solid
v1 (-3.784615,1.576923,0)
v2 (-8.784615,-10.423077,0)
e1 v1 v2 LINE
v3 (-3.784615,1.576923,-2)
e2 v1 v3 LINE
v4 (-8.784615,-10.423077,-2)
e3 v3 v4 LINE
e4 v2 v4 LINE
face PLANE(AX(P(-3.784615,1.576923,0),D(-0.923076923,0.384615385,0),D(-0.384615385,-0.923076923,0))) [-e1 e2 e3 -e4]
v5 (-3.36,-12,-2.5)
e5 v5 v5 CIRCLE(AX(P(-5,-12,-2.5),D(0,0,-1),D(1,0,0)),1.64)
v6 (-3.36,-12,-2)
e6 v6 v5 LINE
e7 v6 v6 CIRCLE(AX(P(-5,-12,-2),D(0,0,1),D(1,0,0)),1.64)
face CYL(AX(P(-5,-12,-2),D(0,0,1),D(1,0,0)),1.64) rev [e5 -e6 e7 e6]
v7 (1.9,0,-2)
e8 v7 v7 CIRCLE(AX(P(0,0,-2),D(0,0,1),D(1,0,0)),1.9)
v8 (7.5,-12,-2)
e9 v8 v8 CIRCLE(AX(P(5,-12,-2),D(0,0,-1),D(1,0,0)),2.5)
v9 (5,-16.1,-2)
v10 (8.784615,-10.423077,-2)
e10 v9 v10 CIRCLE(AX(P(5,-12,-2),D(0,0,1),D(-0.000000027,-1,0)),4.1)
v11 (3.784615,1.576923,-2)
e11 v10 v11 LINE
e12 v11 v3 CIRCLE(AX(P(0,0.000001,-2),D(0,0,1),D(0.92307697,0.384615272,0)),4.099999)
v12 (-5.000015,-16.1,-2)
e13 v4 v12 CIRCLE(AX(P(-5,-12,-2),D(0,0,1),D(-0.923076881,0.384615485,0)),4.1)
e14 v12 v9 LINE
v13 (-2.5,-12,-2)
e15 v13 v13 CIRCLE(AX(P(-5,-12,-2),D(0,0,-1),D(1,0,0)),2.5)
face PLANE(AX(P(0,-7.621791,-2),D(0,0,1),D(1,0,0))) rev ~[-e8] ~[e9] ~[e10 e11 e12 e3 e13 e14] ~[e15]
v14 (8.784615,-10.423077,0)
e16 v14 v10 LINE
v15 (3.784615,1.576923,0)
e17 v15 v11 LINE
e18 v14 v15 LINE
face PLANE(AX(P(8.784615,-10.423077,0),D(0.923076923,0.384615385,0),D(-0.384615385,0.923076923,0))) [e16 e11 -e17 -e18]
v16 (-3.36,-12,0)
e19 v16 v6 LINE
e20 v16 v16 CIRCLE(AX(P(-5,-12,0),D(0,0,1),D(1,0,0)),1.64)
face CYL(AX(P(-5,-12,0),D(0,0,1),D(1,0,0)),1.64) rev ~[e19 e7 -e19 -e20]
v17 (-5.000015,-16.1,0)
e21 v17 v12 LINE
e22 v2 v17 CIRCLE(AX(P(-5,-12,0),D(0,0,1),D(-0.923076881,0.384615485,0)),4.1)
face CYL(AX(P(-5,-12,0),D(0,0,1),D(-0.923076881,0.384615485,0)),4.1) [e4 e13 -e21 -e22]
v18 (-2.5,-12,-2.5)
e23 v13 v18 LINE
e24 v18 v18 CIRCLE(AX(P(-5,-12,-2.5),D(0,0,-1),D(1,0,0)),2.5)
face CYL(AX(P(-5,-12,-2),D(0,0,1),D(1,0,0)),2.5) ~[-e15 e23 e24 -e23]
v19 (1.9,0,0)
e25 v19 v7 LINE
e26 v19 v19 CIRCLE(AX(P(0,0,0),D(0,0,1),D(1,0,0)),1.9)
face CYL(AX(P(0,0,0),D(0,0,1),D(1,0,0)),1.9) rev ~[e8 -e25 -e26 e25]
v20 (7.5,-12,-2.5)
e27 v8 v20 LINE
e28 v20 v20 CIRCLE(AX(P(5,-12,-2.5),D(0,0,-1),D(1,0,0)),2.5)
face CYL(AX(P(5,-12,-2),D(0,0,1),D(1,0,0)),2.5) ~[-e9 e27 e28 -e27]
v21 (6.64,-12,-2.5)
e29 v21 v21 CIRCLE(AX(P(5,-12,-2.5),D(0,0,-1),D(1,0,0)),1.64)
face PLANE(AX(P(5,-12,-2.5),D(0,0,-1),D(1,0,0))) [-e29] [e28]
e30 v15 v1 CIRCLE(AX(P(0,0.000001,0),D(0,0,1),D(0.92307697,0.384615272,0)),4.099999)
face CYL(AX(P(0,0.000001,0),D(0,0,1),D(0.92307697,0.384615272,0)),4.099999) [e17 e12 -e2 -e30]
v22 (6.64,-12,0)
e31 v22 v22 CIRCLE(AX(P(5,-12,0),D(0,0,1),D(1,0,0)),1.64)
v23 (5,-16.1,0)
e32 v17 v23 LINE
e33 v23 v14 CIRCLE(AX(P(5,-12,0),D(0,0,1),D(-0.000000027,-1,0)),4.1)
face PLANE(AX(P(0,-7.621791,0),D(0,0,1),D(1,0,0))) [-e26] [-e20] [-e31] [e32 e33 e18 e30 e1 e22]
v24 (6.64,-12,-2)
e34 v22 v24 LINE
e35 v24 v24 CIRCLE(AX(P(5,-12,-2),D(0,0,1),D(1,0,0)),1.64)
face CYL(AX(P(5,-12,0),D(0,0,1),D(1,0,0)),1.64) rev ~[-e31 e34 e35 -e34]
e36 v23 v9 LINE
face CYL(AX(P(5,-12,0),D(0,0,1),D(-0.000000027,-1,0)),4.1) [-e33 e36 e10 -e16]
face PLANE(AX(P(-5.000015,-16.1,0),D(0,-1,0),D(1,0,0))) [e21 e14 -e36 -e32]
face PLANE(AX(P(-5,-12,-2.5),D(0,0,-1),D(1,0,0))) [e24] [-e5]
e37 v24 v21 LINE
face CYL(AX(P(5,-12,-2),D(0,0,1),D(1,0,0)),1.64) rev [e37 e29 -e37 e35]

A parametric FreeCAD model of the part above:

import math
import FreeCAD as App
import Part
import Sketcher
from FreeCAD import Vector

doc = App.newDocument("Part")
params = doc.addObject("Spreadsheet::Sheet", "Params")
for row, (alias, value) in enumerate([
    ("sketch1_diameter", "3.8 mm"),
    ("sketch1_radius", "4.099999 mm"),
    ("sketch1_diameter2", "3.28 mm"),
    ("sketch1_length", "13 mm"),
    ("pad1_length", "2 mm"),
    ("sketch2_diameter", "5 mm"),
    ("sketch2_diameter2", "3.28 mm"),
    ("pad2_length", "0.5 mm"),
], start=1):
    params.set(f"A{row}", alias)
    params.set(f"B{row}", "=" + value)
    params.setAlias(f"B{row}", alias)

body = doc.addObject("PartDesign::Body", "Body")

# Sketch on XY plane
sketch1 = body.newObject("Sketcher::SketchObject", "Sketch")
sketch1.AttachmentSupport = (doc.getObject("XY_Plane"), [""])
sketch1.MapMode = "FlatFace"
sketch1.addGeometry(Part.ArcOfCircle(Part.Circle(Vector(0, 0.000001, 0), Vector(0, 0, 1), 4.099999), math.radians(22.619858), math.radians(157.380142)), False)
sketch1.addGeometry(Part.LineSegment(Vector(-3.784615, 1.576923, 0), Vector(-8.784615, -10.423077, 0)), False)
sketch1.addGeometry(Part.ArcOfCircle(Part.Circle(Vector(-5, -12, 0), Vector(0, 0, 1), 4.1), math.radians(157.380129), math.radians(269.999792)), False)
sketch1.addGeometry(Part.LineSegment(Vector(-5.000015, -16.1, 0), Vector(5, -16.1, 0)), False)
sketch1.addGeometry(Part.ArcOfCircle(Part.Circle(Vector(5, -12, 0), Vector(0, 0, 1), 4.1), math.radians(-90.000002), math.radians(22.619871)), False)
sketch1.addGeometry(Part.LineSegment(Vector(8.784615, -10.423077, 0), Vector(3.784615, 1.576923, 0)), False)
sketch1.addGeometry(Part.Circle(Vector(-5, -12, 0), Vector(0, 0, 1), 1.64), False)
sketch1.addGeometry(Part.Circle(Vector(5, -12, 0), Vector(0, 0, 1), 1.64), False)
sketch1.addGeometry(Part.Circle(Vector(0, 0, 0), Vector(0, 0, 1), 1.9), False)
sketch1.addConstraint(Sketcher.Constraint("Tangent", 0, 2, 1, 1))
sketch1.addConstraint(Sketcher.Constraint("Tangent", 1, 2, 2, 1))
sketch1.addConstraint(Sketcher.Constraint("Coincident", 2, 2, 3, 1))
sketch1.addConstraint(Sketcher.Constraint("Tangent", 3, 2, 4, 1))
sketch1.addConstraint(Sketcher.Constraint("Tangent", 4, 2, 5, 1))
sketch1.addConstraint(Sketcher.Constraint("Tangent", 5, 2, 0, 1))
sketch1.addConstraint(Sketcher.Constraint("Horizontal", 3))
sketch1.addConstraint(Sketcher.Constraint("Coincident", 0, 3, -1, 1))
sketch1.addConstraint(Sketcher.Constraint("Coincident", 8, 3, -1, 1))
sketch1.addConstraint(Sketcher.Constraint("Coincident", 6, 3, 2, 3))
sketch1.addConstraint(Sketcher.Constraint("Coincident", 7, 3, 4, 3))
sketch1.addConstraint(Sketcher.Constraint("Equal", 0, 2))
sketch1.addConstraint(Sketcher.Constraint("Equal", 2, 4))
sketch1.addConstraint(Sketcher.Constraint("Equal", 6, 7))
sketch1.addConstraint(Sketcher.Constraint("Horizontal", 1, 2, 4, 2))
sketch1.addConstraint(Sketcher.Constraint("Diameter", 8, 3.8))
sketch1.addConstraint(Sketcher.Constraint("Radius", 0, 4.099999))
sketch1.addConstraint(Sketcher.Constraint("Diameter", 6, 3.28))
sketch1.addConstraint(Sketcher.Constraint("Distance", 1, 13.0))
sketch1.addConstraint(Sketcher.Constraint("DistanceX", 2, 3, -1, 1, 5.0))
sketch1.addConstraint(Sketcher.Constraint("DistanceX", 1, 2, 2, 2, 3.7846))
sketch1.setExpression("Constraints[15]", "Params.sketch1_diameter")
sketch1.setExpression("Constraints[16]", "Params.sketch1_radius")
sketch1.setExpression("Constraints[17]", "Params.sketch1_diameter2")
sketch1.setExpression("Constraints[18]", "Params.sketch1_length")
pad1 = body.newObject("PartDesign::Pad", "Pad")
pad1.Profile = sketch1
pad1.setExpression("Length", "Params.pad1_length")
pad1.Reversed = True

# Sketch on XY plane
sketch2 = body.newObject("Sketcher::SketchObject", "Sketch001")
sketch2.AttachmentSupport = (doc.getObject("XY_Plane"), [""])
sketch2.MapMode = "FlatFace"
sketch2.AttachmentOffset = App.Placement(Vector(0, 0, -2), App.Rotation())
sketch2.addGeometry(Part.Circle(Vector(-5, -12, 0), Vector(0, 0, 1), 2.5), False)
sketch2.addGeometry(Part.Circle(Vector(-5, -12, 0), Vector(0, 0, 1), 1.64), False)
sketch2.addGeometry(Part.Circle(Vector(5, -12, 0), Vector(0, 0, 1), 2.5), False)
sketch2.addGeometry(Part.Circle(Vector(5, -12, 0), Vector(0, 0, 1), 1.64), False)
sketch2.addConstraint(Sketcher.Constraint("Coincident", 1, 3, 0, 3))
sketch2.addConstraint(Sketcher.Constraint("Coincident", 3, 3, 2, 3))
sketch2.addConstraint(Sketcher.Constraint("Equal", 0, 2))
sketch2.addConstraint(Sketcher.Constraint("Equal", 1, 3))
sketch2.addConstraint(Sketcher.Constraint("Symmetric", 0, 3, 2, 3, -2))
sketch2.addConstraint(Sketcher.Constraint("Diameter", 0, 5.0))
sketch2.addConstraint(Sketcher.Constraint("Diameter", 1, 3.28))
sketch2.addConstraint(Sketcher.Constraint("DistanceX", 0, 3, -1, 1, 5.0))
sketch2.addConstraint(Sketcher.Constraint("DistanceY", 0, 3, -1, 1, 12.0))
sketch2.setExpression("Constraints[5]", "Params.sketch2_diameter")
sketch2.setExpression("Constraints[6]", "Params.sketch2_diameter2")
pad2 = body.newObject("PartDesign::Pad", "Pad001")
pad2.Profile = sketch2
pad2.setExpression("Length", "Params.pad2_length")
pad2.Reversed = True

doc.recompute()
